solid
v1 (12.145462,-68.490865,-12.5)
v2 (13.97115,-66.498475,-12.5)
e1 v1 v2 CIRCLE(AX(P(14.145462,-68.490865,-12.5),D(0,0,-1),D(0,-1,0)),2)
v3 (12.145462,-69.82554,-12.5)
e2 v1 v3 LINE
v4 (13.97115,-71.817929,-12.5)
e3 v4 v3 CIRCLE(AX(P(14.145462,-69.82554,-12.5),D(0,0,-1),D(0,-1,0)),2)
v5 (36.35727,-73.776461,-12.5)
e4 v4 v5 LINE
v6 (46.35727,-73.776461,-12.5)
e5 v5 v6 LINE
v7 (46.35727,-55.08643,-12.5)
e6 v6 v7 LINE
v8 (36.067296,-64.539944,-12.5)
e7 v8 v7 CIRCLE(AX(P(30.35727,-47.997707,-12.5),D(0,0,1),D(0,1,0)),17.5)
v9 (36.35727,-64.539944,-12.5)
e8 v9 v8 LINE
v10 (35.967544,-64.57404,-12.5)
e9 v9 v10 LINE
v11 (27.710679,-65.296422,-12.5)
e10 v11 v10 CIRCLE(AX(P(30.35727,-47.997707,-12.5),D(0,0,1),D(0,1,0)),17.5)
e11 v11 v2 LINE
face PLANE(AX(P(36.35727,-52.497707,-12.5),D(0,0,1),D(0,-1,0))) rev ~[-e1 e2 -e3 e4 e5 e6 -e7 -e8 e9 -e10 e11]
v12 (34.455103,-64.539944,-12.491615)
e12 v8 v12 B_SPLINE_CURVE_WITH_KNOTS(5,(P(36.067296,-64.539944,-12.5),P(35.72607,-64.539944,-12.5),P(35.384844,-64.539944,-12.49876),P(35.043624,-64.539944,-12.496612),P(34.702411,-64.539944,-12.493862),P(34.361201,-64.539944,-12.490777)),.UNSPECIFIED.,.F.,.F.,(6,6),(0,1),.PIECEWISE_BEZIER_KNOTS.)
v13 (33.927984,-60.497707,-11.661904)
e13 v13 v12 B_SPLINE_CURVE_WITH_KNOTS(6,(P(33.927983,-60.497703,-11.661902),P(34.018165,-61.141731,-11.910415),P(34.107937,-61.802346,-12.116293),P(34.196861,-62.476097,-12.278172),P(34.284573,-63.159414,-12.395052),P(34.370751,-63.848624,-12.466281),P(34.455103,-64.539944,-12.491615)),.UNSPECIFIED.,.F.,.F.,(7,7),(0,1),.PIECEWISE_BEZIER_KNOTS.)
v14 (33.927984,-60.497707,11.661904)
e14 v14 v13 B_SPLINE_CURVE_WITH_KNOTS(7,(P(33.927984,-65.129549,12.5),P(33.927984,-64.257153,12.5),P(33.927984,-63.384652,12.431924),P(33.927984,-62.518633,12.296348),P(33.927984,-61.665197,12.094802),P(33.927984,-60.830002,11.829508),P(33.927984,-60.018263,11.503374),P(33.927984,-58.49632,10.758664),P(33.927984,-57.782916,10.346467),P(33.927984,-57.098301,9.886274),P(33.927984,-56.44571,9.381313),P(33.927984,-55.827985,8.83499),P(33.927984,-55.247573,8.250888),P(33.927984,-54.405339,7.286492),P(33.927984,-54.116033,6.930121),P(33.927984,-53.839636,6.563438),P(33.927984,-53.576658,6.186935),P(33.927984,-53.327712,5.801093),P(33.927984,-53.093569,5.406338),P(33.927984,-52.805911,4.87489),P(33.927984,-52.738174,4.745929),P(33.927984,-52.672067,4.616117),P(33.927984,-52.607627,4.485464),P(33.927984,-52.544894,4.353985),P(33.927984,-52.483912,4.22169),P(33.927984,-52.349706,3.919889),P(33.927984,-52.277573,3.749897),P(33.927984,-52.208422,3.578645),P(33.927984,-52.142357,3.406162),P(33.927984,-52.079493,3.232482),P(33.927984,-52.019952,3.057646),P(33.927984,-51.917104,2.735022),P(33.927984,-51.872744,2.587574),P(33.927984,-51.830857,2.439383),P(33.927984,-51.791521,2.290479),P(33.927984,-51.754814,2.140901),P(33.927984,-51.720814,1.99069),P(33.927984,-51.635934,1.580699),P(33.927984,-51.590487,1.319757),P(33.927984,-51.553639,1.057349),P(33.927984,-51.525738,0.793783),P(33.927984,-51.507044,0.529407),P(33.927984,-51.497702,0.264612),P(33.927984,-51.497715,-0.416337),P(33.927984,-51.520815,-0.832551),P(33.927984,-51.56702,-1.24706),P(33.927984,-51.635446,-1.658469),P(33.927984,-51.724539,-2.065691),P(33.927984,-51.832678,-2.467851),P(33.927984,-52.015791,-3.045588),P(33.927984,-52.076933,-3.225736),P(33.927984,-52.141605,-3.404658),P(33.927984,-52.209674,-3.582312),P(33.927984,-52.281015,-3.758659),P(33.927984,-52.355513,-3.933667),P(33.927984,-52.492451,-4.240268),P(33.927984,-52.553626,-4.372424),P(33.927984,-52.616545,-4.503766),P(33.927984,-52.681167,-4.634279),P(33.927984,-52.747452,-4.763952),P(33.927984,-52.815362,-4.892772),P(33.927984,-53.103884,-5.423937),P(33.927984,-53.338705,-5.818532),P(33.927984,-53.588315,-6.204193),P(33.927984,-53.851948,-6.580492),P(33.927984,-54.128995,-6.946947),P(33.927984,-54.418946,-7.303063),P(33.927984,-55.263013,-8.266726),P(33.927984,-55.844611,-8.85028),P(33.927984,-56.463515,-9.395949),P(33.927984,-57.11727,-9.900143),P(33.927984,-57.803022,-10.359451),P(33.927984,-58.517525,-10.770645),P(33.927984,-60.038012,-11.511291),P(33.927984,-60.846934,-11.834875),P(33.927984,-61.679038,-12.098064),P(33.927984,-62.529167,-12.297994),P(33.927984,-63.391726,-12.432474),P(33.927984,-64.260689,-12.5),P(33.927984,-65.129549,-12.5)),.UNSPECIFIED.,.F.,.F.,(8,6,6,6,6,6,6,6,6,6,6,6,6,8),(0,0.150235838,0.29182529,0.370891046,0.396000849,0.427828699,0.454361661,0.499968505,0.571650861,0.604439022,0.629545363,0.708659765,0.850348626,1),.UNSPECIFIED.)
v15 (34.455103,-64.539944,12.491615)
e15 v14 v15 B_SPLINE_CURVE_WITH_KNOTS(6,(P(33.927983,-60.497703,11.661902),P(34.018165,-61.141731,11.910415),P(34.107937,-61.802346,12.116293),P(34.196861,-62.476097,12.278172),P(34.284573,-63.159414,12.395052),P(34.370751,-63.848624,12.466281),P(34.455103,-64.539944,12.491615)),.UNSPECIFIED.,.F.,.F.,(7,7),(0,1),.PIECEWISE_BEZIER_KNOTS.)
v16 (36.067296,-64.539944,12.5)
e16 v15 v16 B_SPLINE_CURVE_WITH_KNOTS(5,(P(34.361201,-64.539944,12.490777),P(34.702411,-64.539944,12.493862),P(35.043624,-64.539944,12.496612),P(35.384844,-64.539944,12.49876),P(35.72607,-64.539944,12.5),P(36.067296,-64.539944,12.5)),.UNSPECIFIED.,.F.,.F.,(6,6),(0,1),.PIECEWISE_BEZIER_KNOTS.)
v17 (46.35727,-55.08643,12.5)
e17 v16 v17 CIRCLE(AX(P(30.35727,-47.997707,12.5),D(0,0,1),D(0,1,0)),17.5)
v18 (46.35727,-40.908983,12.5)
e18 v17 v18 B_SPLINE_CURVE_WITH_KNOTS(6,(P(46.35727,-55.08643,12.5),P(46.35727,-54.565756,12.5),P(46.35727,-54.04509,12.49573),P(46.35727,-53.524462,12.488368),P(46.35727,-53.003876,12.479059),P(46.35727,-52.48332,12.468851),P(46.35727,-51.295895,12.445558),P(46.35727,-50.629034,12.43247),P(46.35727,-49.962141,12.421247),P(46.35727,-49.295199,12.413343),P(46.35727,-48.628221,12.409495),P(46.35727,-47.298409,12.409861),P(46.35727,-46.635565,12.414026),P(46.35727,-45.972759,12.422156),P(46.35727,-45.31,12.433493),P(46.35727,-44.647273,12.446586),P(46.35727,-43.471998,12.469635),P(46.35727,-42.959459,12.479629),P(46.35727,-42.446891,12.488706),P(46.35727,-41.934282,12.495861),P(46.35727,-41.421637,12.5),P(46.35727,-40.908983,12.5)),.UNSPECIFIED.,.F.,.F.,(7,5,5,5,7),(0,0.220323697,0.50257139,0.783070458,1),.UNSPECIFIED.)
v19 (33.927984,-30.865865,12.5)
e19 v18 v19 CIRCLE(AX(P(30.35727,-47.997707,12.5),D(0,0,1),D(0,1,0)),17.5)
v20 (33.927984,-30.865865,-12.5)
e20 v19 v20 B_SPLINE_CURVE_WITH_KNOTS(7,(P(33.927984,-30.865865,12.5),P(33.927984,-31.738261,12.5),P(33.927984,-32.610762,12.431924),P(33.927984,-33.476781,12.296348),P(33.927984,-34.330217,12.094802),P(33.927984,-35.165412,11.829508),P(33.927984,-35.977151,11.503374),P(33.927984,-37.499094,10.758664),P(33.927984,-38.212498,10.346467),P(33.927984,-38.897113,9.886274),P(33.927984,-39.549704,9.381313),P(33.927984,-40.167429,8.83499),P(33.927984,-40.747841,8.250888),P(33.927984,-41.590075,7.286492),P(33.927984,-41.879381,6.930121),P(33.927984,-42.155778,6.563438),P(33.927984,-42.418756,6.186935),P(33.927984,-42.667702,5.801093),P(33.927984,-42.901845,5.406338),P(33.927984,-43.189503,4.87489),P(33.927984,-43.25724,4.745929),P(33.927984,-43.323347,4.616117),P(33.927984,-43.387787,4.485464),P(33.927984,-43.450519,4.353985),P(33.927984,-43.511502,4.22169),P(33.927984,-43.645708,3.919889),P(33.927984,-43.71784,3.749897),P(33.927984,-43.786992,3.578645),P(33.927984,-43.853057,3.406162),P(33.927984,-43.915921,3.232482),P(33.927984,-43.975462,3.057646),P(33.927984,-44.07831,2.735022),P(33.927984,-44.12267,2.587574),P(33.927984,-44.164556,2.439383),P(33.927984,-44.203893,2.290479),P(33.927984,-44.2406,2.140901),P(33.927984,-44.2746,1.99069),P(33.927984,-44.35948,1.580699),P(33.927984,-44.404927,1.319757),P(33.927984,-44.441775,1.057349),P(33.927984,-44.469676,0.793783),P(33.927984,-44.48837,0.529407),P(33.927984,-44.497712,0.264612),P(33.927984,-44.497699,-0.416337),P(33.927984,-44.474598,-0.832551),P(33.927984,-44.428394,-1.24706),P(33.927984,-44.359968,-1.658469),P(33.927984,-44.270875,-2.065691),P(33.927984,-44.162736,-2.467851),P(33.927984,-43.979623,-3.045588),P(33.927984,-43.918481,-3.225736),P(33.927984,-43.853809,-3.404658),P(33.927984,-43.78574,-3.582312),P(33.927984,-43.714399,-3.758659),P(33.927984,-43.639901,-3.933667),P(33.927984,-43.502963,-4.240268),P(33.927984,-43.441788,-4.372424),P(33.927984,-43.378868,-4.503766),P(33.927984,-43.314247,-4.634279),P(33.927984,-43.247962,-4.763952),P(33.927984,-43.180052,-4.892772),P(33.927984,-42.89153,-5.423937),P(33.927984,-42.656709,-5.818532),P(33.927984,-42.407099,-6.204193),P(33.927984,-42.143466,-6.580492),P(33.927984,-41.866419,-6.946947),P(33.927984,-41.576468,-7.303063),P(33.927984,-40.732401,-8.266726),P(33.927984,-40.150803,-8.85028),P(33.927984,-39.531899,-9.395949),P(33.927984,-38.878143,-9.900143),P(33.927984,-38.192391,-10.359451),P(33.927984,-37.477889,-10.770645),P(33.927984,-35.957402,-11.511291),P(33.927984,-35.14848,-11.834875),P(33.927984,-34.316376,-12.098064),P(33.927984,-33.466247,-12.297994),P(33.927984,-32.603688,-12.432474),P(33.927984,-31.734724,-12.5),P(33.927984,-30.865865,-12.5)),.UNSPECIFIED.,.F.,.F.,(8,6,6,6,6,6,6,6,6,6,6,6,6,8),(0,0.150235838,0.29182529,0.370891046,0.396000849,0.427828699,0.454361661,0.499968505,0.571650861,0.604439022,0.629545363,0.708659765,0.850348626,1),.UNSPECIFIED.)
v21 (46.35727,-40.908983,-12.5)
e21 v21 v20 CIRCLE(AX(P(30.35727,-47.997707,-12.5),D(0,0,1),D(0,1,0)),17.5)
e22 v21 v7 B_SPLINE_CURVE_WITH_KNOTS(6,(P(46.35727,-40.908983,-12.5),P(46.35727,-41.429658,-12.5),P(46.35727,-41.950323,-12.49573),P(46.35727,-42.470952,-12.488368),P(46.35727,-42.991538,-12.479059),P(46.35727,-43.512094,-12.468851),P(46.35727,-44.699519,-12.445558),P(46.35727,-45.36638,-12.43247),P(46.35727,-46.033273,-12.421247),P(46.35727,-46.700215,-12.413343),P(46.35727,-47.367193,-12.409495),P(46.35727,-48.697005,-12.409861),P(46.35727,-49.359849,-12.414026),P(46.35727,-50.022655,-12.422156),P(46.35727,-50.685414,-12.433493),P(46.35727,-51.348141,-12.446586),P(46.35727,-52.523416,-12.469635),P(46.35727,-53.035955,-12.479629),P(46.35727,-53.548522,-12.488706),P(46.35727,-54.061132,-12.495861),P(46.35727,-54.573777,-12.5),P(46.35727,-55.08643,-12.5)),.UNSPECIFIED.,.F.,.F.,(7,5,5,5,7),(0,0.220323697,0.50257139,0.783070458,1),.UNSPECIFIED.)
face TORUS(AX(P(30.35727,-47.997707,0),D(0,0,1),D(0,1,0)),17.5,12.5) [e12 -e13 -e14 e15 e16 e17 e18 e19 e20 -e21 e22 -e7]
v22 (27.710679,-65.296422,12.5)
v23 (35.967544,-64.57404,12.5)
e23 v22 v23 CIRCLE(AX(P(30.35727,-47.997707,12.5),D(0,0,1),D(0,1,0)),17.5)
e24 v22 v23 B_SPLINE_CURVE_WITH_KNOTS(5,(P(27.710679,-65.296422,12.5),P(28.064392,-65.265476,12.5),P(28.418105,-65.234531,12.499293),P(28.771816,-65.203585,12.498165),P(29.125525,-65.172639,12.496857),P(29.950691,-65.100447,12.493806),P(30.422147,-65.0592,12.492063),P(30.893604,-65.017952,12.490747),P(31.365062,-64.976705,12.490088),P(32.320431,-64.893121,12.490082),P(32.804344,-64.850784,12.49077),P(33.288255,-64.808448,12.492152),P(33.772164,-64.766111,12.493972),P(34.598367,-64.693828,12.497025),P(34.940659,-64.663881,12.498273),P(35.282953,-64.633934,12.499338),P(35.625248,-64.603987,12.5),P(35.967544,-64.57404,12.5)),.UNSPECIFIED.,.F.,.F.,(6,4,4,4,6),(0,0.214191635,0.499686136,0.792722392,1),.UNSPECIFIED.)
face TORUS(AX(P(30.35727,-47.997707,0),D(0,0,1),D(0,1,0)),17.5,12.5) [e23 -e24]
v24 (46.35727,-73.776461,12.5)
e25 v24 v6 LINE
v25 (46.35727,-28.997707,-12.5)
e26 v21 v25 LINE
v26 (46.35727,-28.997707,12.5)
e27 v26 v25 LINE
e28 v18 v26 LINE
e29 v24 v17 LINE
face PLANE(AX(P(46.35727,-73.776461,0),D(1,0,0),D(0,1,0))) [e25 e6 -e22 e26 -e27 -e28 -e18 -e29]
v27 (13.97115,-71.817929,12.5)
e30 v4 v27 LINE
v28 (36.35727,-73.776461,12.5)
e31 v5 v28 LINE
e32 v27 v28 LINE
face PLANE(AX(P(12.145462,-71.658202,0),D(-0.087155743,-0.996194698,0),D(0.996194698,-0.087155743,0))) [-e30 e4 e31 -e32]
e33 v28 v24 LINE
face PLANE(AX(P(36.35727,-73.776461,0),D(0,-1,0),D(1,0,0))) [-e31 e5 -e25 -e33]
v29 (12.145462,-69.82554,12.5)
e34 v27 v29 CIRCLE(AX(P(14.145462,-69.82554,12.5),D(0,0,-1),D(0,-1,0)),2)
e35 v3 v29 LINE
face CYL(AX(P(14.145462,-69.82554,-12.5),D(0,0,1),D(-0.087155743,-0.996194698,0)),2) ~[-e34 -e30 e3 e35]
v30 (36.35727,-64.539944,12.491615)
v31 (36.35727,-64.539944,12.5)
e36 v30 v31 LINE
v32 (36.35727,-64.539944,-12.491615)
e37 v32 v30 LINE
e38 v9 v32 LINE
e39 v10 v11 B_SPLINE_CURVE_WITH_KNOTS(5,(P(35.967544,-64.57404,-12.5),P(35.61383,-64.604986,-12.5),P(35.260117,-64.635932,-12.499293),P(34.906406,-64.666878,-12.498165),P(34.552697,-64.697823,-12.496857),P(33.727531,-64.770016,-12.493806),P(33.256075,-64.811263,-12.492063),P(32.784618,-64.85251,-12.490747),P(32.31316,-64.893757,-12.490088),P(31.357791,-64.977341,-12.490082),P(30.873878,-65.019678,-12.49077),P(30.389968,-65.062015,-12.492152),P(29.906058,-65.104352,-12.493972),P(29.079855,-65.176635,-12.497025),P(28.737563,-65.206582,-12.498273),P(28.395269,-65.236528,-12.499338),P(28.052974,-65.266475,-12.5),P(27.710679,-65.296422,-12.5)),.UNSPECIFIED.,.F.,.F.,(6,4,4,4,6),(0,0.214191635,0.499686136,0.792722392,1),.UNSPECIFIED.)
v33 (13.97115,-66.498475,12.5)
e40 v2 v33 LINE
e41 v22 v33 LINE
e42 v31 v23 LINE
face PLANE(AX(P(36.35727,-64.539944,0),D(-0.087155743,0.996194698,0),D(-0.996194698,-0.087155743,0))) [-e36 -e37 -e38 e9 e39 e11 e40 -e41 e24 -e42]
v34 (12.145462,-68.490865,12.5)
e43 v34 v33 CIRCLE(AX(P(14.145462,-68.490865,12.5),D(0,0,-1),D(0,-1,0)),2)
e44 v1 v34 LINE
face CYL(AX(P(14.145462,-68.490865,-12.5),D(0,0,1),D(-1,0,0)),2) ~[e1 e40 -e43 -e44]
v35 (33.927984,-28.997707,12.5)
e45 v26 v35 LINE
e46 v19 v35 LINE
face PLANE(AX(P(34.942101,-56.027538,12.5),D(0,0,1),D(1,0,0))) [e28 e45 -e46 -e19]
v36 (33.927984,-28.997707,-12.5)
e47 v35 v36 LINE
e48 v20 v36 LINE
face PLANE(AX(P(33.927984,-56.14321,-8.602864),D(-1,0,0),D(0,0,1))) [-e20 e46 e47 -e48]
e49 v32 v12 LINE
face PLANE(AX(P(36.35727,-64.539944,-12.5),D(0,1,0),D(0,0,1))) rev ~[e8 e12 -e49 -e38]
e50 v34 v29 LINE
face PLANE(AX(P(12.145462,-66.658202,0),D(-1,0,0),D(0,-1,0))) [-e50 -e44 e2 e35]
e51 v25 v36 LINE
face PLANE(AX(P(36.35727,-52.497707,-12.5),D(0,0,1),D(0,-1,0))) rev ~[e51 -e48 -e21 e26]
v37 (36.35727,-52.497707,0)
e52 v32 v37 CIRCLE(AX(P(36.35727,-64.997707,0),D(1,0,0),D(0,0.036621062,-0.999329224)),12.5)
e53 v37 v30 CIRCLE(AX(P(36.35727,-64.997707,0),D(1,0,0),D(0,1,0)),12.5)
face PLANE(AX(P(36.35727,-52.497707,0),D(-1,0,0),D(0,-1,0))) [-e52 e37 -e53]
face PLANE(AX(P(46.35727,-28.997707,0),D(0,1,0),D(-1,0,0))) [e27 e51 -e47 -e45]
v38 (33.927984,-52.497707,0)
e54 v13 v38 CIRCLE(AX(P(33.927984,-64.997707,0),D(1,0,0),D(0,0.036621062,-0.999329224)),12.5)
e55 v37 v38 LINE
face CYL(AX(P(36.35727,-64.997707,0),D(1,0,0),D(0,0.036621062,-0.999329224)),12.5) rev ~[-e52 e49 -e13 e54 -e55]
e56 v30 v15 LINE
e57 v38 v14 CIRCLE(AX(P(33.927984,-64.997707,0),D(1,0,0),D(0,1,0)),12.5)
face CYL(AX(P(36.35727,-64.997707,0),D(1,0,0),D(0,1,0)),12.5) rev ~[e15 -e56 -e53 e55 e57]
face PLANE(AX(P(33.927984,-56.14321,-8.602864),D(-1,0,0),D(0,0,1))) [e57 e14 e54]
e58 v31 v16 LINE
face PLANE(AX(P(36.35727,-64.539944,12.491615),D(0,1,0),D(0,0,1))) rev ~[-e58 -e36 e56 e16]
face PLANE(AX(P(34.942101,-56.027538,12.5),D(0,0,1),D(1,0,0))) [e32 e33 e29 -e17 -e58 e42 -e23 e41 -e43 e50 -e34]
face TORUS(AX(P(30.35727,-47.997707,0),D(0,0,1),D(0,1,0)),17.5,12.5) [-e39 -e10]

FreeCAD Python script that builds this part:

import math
import FreeCAD as App
import Part
import Sketcher
from FreeCAD import Vector
Q = App.Units.Quantity


def edges_at(feature, points):
    """Names of the edges that pass closest to the given points."""
    edges = feature.Shape.Edges
    near = lambda p: min(range(len(edges)), key=lambda i: edges[i].distToShape(Part.Vertex(*p))[0])
    return sorted({f"Edge{near(p) + 1}" for p in points})

doc = App.newDocument("Part")
body = doc.addObject("PartDesign::Body", "Body")

sketch1 = body.newObject("Sketcher::SketchObject", "Sketch")
sketch1.AttachmentSupport = (doc.getObject("XY_Plane"), [""])
sketch1.MapMode = "FlatFace"
sketch1.addGeometry(Part.LineSegment(Vector(33.9, -29, 0), Vector(33.9, -52.5, 0)), False)
sketch1.addGeometry(Part.LineSegment(Vector(33.9, -52.5, 0), Vector(36.4, -52.5, 0)), False)
sketch1.addGeometry(Part.LineSegment(Vector(36.4, -52.5, 0), Vector(36.4, -64.5, 0)), False)
sketch1.addGeometry(Part.LineSegment(Vector(36.4, -64.5, 0), Vector(12.1, -66.7, 0)), False)
sketch1.addGeometry(Part.LineSegment(Vector(12.1, -66.7, 0), Vector(12.1, -71.7, 0)), False)
sketch1.addGeometry(Part.LineSegment(Vector(12.1, -71.7, 0), Vector(36.4, -73.8, 0)), False)
sketch1.addGeometry(Part.LineSegment(Vector(36.4, -73.8, 0), Vector(46.4, -73.8, 0)), False)
sketch1.addGeometry(Part.LineSegment(Vector(46.4, -73.8, 0), Vector(46.4, -29, 0)), False)
sketch1.addGeometry(Part.LineSegment(Vector(46.4, -29, 0), Vector(33.9, -29, 0)), False)
sketch1.addConstraint(Sketcher.Constraint("Coincident", 0, 2, 1, 1))
sketch1.addConstraint(Sketcher.Constraint("Coincident", 1, 2, 2, 1))
sketch1.addConstraint(Sketcher.Constraint("Coincident", 2, 2, 3, 1))
sketch1.addConstraint(Sketcher.Constraint("Coincident", 3, 2, 4, 1))
sketch1.addConstraint(Sketcher.Constraint("Coincident", 4, 2, 5, 1))
sketch1.addConstraint(Sketcher.Constraint("Coincident", 5, 2, 6, 1))
sketch1.addConstraint(Sketcher.Constraint("Coincident", 6, 2, 7, 1))
sketch1.addConstraint(Sketcher.Constraint("Coincident", 7, 2, 8, 1))
sketch1.addConstraint(Sketcher.Constraint("Coincident", 8, 2, 0, 1))
sketch1.addConstraint(Sketcher.Constraint("Vertical", 0))
sketch1.addConstraint(Sketcher.Constraint("Horizontal", 1))
sketch1.addConstraint(Sketcher.Constraint("Vertical", 2))
sketch1.addConstraint(Sketcher.Constraint("Vertical", 4))
sketch1.addConstraint(Sketcher.Constraint("Horizontal", 6))
sketch1.addConstraint(Sketcher.Constraint("Vertical", 7))
sketch1.addConstraint(Sketcher.Constraint("Horizontal", 8))
sketch1.addConstraint(Sketcher.Constraint("Vertical", 2, 2, 5, 2))
sketch1.addConstraint(Sketcher.Constraint("Equal", 3, 5))
sketch1.addConstraint(Sketcher.Constraint("DistanceX", 6, 1, 6, 2, 10.0))
sketch1.addConstraint(Sketcher.Constraint("DistanceY", 4, 2, 4, 1, 5.0))
sketch1.addConstraint(Sketcher.Constraint("Angle", 3, Q("-175 deg")))
sketch1.addConstraint(Sketcher.Constraint("DistanceY", 0, 2, 0, 1, 23.5))
sketch1.addConstraint(Sketcher.Constraint("DistanceX", 1, 1, 1, 2, 2.429286))
sketch1.addConstraint(Sketcher.Constraint("DistanceY", 2, 2, 2, 1, 12.042237))
sketch1.addConstraint(Sketcher.Constraint("DistanceY", 7, 1, 7, 2, 44.778754))
sketch1.addConstraint(Sketcher.Constraint("DistanceX", -1, 1, 1, 2, 36.35727))
sketch1.addConstraint(Sketcher.Constraint("DistanceY", 5, 2, -1, 1, 73.776461))
pad1 = body.newObject("PartDesign::Pad", "Pad")
pad1.Profile = sketch1
pad1.Length = 25
pad1.Midplane = True

sketch2 = body.newObject("Sketcher::SketchObject", "Sketch001")
sketch2.AttachmentSupport = (doc.getObject("YZ_Plane"), [""])
sketch2.MapMode = "FlatFace"
sketch2.AttachmentOffset = App.Placement(Vector(0, 0, 36.35727), App.Rotation())
sketch2.addGeometry(Part.LineSegment(Vector(-52.498, -12.5, 0), Vector(-64.54, -12.5, 0)), False)
sketch2.addGeometry(Part.LineSegment(Vector(-64.54, -12.5, 0), Vector(-64.54, -12.492, 0)), False)
sketch2.addGeometry(Part.ArcOfCircle(Part.Circle(Vector(-64.998, 0, 0), Vector(0, 0, 1), 12.5), math.radians(-88), math.radians(0)), False)
sketch2.addGeometry(Part.LineSegment(Vector(-52.498, 0, 0), Vector(-52.498, -12.5, 0)), False)
sketch2.addGeometry(Part.LineSegment(Vector(-52.498, 12.5, 0), Vector(-52.498, 0, 0)), False)
sketch2.addGeometry(Part.ArcOfCircle(Part.Circle(Vector(-64.998, 0, 0), Vector(0, 0, 1), 12.5), math.radians(0), math.radians(88)), False)
sketch2.addGeometry(Part.LineSegment(Vector(-64.54, 12.492, 0), Vector(-64.54, 12.5, 0)), False)
sketch2.addGeometry(Part.LineSegment(Vector(-64.54, 12.5, 0), Vector(-52.498, 12.5, 0)), False)
sketch2.addConstraint(Sketcher.Constraint("Coincident", 0, 2, 1, 1))
sketch2.addConstraint(Sketcher.Constraint("Coincident", 1, 2, 2, 1))
sketch2.addConstraint(Sketcher.Constraint("Tangent", 2, 2, 3, 1))
sketch2.addConstraint(Sketcher.Constraint("Coincident", 3, 2, 0, 1))
sketch2.addConstraint(Sketcher.Constraint("Tangent", 4, 2, 5, 1))
sketch2.addConstraint(Sketcher.Constraint("Coincident", 5, 2, 6, 1))
sketch2.addConstraint(Sketcher.Constraint("Coincident", 6, 2, 7, 1))
sketch2.addConstraint(Sketcher.Constraint("Coincident", 7, 2, 4, 1))
sketch2.addConstraint(Sketcher.Constraint("Horizontal", 0))
sketch2.addConstraint(Sketcher.Constraint("Vertical", 1))
sketch2.addConstraint(Sketcher.Constraint("Vertical", 3))
sketch2.addConstraint(Sketcher.Constraint("Vertical", 4))
sketch2.addConstraint(Sketcher.Constraint("Vertical", 6))
sketch2.addConstraint(Sketcher.Constraint("Horizontal", 7))
sketch2.addConstraint(Sketcher.Constraint("Coincident", 5, 3, 2, 3))
sketch2.addConstraint(Sketcher.Constraint("Equal", 2, 5))
sketch2.addConstraint(Sketcher.Constraint("Symmetric", 1, 2, 5, 2, -1))
sketch2.addConstraint(Sketcher.Constraint("Equal", 3, 4))
sketch2.addConstraint(Sketcher.Constraint("Radius", 2, 12.5))
sketch2.addConstraint(Sketcher.Constraint("DistanceY", 3, 2, 3, 1, 12.5))
sketch2.addConstraint(Sketcher.Constraint("DistanceX", 0, 2, 0, 1, 12.042237))
sketch2.addConstraint(Sketcher.Constraint("DistanceX", 2, 3, -1, 1, 64.997707))
pad2 = body.newObject("PartDesign::Pad", "Pad001")
pad2.Profile = sketch2
pad2.Length = 2.429286
pad2.Reversed = True

sketch3 = body.newObject("Sketcher::SketchObject", "Sketch002")
sketch3.AttachmentSupport = (doc.getObject("YZ_Plane"), [""])
sketch3.MapMode = "FlatFace"
sketch3.AttachmentOffset = App.Placement(Vector(0, 0, 30.35727), App.Rotation())
sketch3.addGeometry(Part.LineSegment(Vector(-48, -12, 0), Vector(-48, 12, 0)), False)
sketch3.addGeometry(Part.LineSegment(Vector(-48, 12, 0), Vector(-30, 12, 0)), False)
sketch3.addGeometry(Part.ArcOfCircle(Part.Circle(Vector(-30, 0, 0), Vector(0, 0, 1), 12), math.radians(90), math.radians(270)), False)
sketch3.addGeometry(Part.LineSegment(Vector(-30, -12, 0), Vector(-48, -12, 0)), False)
sketch3.addGeometry(Part.LineSegment(Vector(-48, -12, 0), Vector(-48, 12, 0)), True)
sketch3.addConstraint(Sketcher.Constraint("Coincident", 0, 2, 1, 1))
sketch3.addConstraint(Sketcher.Constraint("Tangent", 1, 2, 2, 1))
sketch3.addConstraint(Sketcher.Constraint("Tangent", 2, 2, 3, 1))
sketch3.addConstraint(Sketcher.Constraint("Coincident", 3, 2, 0, 1))
sketch3.addConstraint(Sketcher.Constraint("Vertical", 0))
sketch3.addConstraint(Sketcher.Constraint("Horizontal", 1))
sketch3.addConstraint(Sketcher.Constraint("Horizontal", 3))
sketch3.addConstraint(Sketcher.Constraint("Vertical", 4))
sketch3.addConstraint(Sketcher.Constraint("Coincident", 4, 1, 3, 2))
sketch3.addConstraint(Sketcher.Constraint("PointOnObject", 2, 3, -1))
sketch3.addConstraint(Sketcher.Constraint("Horizontal", 1, 2, 4, 2))
sketch3.addConstraint(Sketcher.Constraint("Radius", 2, 12.5))
sketch3.addConstraint(Sketcher.Constraint("DistanceX", 1, 1, 1, 2, 17.5))
sketch3.addConstraint(Sketcher.Constraint("DistanceX", 2, 3, -1, 1, 30.497707))
groove = body.newObject("PartDesign::Groove", "Groove")
groove.Profile = sketch3
groove.ReferenceAxis = (sketch3, ["Axis0"])
groove.Angle = 360
doc.recompute()

fillet = body.newObject("PartDesign::Fillet", "Fillet")
fillet.Base = (groove, edges_at(groove, [(12.145, -71.658, 0), (12.145, -66.658, 0)]))
fillet.Radius = 2

doc.recompute()
